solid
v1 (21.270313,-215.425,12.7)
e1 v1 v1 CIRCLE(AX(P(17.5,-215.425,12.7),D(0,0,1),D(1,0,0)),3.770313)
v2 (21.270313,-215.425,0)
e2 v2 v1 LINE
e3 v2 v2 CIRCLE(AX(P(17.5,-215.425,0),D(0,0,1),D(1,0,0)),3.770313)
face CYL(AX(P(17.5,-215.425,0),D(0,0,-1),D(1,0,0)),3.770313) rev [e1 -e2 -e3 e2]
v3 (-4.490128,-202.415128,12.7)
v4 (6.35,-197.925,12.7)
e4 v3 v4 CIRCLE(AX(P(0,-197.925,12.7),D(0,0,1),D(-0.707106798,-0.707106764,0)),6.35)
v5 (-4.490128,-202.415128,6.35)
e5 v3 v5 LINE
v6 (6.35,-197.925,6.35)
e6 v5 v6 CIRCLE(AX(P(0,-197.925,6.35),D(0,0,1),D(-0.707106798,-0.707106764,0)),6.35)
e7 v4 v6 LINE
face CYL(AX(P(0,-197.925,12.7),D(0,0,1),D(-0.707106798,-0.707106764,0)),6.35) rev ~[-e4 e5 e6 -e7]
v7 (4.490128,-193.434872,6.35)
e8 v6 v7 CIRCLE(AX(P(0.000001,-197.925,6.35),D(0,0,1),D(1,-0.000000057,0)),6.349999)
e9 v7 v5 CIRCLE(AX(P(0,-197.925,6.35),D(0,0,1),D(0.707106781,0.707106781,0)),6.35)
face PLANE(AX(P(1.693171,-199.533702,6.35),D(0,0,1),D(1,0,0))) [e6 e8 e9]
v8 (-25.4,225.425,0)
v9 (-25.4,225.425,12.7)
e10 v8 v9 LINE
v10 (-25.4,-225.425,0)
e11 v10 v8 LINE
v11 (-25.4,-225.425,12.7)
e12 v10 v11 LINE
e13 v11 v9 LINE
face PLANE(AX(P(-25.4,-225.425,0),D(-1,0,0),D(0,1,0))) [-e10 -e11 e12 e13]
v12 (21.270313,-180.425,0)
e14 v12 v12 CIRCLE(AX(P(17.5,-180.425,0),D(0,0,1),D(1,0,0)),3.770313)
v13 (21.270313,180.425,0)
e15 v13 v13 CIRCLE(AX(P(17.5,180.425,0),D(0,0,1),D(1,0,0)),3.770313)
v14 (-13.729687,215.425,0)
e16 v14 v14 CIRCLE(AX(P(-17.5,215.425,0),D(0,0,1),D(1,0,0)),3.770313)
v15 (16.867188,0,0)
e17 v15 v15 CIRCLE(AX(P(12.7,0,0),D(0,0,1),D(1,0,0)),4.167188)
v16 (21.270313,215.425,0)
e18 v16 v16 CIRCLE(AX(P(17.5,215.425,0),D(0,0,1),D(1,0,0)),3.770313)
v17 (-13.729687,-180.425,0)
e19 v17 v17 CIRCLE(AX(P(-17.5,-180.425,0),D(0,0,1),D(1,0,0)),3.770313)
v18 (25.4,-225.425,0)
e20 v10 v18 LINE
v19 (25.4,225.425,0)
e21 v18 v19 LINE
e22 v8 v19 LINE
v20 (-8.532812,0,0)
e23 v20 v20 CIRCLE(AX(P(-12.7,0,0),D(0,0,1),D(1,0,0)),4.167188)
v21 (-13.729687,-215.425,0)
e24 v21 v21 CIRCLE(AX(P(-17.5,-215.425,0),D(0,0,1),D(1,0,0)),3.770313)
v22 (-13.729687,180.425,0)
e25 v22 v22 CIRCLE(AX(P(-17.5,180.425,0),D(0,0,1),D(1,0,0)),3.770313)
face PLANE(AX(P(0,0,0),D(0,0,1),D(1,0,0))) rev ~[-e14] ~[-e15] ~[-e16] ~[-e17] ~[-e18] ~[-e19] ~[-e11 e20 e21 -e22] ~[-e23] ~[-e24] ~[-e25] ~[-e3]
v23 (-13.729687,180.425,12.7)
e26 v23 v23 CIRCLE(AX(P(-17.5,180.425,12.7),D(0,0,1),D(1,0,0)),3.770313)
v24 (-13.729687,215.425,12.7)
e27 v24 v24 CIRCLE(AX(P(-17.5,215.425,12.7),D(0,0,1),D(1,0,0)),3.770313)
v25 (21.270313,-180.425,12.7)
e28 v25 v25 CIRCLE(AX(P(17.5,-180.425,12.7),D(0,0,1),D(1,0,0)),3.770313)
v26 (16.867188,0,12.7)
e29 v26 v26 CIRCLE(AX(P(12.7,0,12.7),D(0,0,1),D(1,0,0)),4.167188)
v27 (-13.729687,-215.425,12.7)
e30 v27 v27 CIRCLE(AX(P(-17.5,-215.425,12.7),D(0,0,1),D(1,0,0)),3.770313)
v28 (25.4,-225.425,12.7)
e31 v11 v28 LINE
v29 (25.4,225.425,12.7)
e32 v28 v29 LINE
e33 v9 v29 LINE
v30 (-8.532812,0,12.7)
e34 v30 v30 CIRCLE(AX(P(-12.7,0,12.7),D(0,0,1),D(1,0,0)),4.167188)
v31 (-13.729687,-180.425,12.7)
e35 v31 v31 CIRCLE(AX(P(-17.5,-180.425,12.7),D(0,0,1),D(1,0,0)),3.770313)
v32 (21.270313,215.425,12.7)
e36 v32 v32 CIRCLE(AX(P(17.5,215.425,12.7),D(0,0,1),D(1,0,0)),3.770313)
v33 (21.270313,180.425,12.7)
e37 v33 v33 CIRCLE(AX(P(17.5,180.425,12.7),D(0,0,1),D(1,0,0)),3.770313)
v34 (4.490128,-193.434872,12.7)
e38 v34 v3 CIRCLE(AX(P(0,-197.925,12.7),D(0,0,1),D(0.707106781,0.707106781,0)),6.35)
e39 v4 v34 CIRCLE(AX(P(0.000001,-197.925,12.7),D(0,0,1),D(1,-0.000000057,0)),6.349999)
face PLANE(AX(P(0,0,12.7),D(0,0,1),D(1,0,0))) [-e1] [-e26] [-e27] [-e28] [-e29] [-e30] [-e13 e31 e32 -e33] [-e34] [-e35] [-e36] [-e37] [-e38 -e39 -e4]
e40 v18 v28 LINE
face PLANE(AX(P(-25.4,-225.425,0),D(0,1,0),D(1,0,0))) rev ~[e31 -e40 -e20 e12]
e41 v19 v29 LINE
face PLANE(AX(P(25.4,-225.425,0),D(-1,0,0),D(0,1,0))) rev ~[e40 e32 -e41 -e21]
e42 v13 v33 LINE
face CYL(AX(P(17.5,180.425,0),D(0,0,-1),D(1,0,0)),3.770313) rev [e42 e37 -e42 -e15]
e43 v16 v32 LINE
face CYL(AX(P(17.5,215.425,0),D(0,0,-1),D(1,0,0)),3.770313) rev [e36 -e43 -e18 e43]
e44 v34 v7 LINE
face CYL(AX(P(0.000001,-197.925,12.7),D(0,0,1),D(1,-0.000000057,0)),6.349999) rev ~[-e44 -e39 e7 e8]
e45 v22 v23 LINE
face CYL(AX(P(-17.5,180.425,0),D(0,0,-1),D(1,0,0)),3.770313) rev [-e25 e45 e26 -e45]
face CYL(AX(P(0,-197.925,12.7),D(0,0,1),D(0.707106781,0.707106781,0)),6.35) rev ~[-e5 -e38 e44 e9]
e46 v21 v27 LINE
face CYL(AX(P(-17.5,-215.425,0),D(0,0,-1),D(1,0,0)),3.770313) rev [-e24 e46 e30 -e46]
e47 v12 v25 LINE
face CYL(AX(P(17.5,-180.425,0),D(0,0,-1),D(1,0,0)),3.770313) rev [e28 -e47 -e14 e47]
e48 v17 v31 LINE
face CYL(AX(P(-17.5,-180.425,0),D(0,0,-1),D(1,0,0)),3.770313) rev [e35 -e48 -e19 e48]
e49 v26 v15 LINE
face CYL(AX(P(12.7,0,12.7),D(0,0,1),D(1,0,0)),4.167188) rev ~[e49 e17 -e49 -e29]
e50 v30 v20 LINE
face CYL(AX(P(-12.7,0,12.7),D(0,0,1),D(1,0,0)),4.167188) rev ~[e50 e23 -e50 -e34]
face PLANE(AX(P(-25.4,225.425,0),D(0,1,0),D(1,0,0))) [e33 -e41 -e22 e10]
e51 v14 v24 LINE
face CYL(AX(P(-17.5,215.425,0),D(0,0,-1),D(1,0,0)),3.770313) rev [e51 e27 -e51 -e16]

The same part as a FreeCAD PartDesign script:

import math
import FreeCAD as App
import Part
import Sketcher
from FreeCAD import Vector
Q = App.Units.Quantity

doc = App.newDocument("Part")
params = doc.addObject("Spreadsheet::Sheet", "Params")
for row, (alias, value) in enumerate([
    ("sketch1_width", "2 in"),
    ("sketch1_diameter", "0.296875 in"),
    ("sketch1_height", "17.75 in"),
    ("pad1_length", "0.5 in"),
    ("sketch2_diameter", "0.328125 in"),
    ("pocket1_length", "1 in"),
    ("sketch3_radius", "0.25 in"),
    ("pocket2_length", "0.25 in"),
], start=1):
    params.set(f"A{row}", alias)
    params.set(f"B{row}", "=" + value)
    params.setAlias(f"B{row}", alias)

body = doc.addObject("PartDesign::Body", "Body")

sketch1 = body.newObject("Sketcher::SketchObject", "Sketch")
sketch1.AttachmentSupport = (doc.getObject("XY_Plane"), [""])
sketch1.MapMode = "FlatFace"
sketch1.addGeometry(Part.LineSegment(Vector(-25.4, 225.425, 0), Vector(-25.4, -225.425, 0)), False)
sketch1.addGeometry(Part.LineSegment(Vector(-25.4, -225.425, 0), Vector(25.4, -225.425, 0)), False)
sketch1.addGeometry(Part.LineSegment(Vector(25.4, -225.425, 0), Vector(25.4, 225.425, 0)), False)
sketch1.addGeometry(Part.LineSegment(Vector(25.4, 225.425, 0), Vector(-25.4, 225.425, 0)), False)
sketch1.addGeometry(Part.Circle(Vector(-17.5, -215.425, 0), Vector(0, 0, 1), 3.770313), False)
sketch1.addGeometry(Part.Circle(Vector(-17.5, -180.425, 0), Vector(0, 0, 1), 3.770313), False)
sketch1.addGeometry(Part.Circle(Vector(17.5, -215.425, 0), Vector(0, 0, 1), 3.770313), False)
sketch1.addGeometry(Part.Circle(Vector(17.5, -180.425, 0), Vector(0, 0, 1), 3.770313), False)
sketch1.addGeometry(Part.Circle(Vector(-17.5, 180.425, 0), Vector(0, 0, 1), 3.770313), False)
sketch1.addGeometry(Part.Circle(Vector(-17.5, 215.425, 0), Vector(0, 0, 1), 3.770313), False)
sketch1.addGeometry(Part.Circle(Vector(17.5, 180.425, 0), Vector(0, 0, 1), 3.770313), False)
sketch1.addGeometry(Part.Circle(Vector(17.5, 215.425, 0), Vector(0, 0, 1), 3.770313), False)
sketch1.addConstraint(Sketcher.Constraint("Coincident", 0, 2, 1, 1))
sketch1.addConstraint(Sketcher.Constraint("Coincident", 1, 2, 2, 1))
sketch1.addConstraint(Sketcher.Constraint("Coincident", 2, 2, 3, 1))
sketch1.addConstraint(Sketcher.Constraint("Coincident", 3, 2, 0, 1))
sketch1.addConstraint(Sketcher.Constraint("Vertical", 0))
sketch1.addConstraint(Sketcher.Constraint("Horizontal", 1))
sketch1.addConstraint(Sketcher.Constraint("Vertical", 2))
sketch1.addConstraint(Sketcher.Constraint("Horizontal", 3))
sketch1.addConstraint(Sketcher.Constraint("Equal", 4, 5))
sketch1.addConstraint(Sketcher.Constraint("Equal", 5, 6))
sketch1.addConstraint(Sketcher.Constraint("Equal", 6, 7))
sketch1.addConstraint(Sketcher.Constraint("Equal", 7, 8))
sketch1.addConstraint(Sketcher.Constraint("Equal", 8, 9))
sketch1.addConstraint(Sketcher.Constraint("Equal", 9, 10))
sketch1.addConstraint(Sketcher.Constraint("Equal", 10, 11))
sketch1.addConstraint(Sketcher.Constraint("Symmetric", 7, 3, 8, 3, -1, 1))
sketch1.addConstraint(Sketcher.Constraint("Symmetric", 6, 3, 9, 3, -1, 1))
sketch1.addConstraint(Sketcher.Constraint("Symmetric", 5, 3, 10, 3, -1, 1))
sketch1.addConstraint(Sketcher.Constraint("Symmetric", 4, 3, 11, 3, -1, 1))
sketch1.addConstraint(Sketcher.Constraint("Symmetric", 0, 2, 2, 2, -1, 1))
sketch1.addConstraint(Sketcher.Constraint("Symmetric", 4, 3, 6, 3, -2))
sketch1.addConstraint(Sketcher.Constraint("Symmetric", 5, 3, 7, 3, -2))
sketch1.addConstraint(Sketcher.Constraint("Vertical", 4, 3, 5, 3))
sketch1.addConstraint(Sketcher.Constraint("DistanceX", 1, 1, 1, 2, Q("2 in")))
sketch1.addConstraint(Sketcher.Constraint("Diameter", 4, Q("0.296875 in")))
sketch1.addConstraint(Sketcher.Constraint("DistanceY", 0, 2, 0, 1, Q("17.75 in")))
sketch1.addConstraint(Sketcher.Constraint("DistanceX", 4, 3, -1, 1, Q("17.5 mm")))
sketch1.addConstraint(Sketcher.Constraint("DistanceY", 4, 3, -1, 1, Q("215.425 mm")))
sketch1.addConstraint(Sketcher.Constraint("DistanceY", 5, 3, -1, 1, Q("180.425 mm")))
sketch1.setExpression("Constraints[23]", "Params.sketch1_width")
sketch1.setExpression("Constraints[24]", "Params.sketch1_diameter")
sketch1.setExpression("Constraints[25]", "Params.sketch1_height")
pad1 = body.newObject("PartDesign::Pad", "Pad")
pad1.Profile = sketch1
pad1.setExpression("Length", "Params.pad1_length")

sketch2 = body.newObject("Sketcher::SketchObject", "Sketch001")
sketch2.AttachmentSupport = (doc.getObject("XY_Plane"), [""])
sketch2.MapMode = "FlatFace"
sketch2.AttachmentOffset = App.Placement(Vector(0, 0, 0.5 * 25.4), App.Rotation())
sketch2.addGeometry(Part.Circle(Vector(-12.7, 0, 0), Vector(0, 0, 1), 4.167188), False)
sketch2.addGeometry(Part.Circle(Vector(12.7, 0, 0), Vector(0, 0, 1), 4.167188), False)
sketch2.addConstraint(Sketcher.Constraint("Equal", 0, 1))
sketch2.addConstraint(Sketcher.Constraint("Symmetric", 0, 3, 1, 3, -1, 1))
sketch2.addConstraint(Sketcher.Constraint("PointOnObject", 0, 3, -1))
sketch2.addConstraint(Sketcher.Constraint("Diameter", 0, Q("0.328125 in")))
sketch2.addConstraint(Sketcher.Constraint("DistanceX", 0, 3, 1, 3, Q("1 in")))
sketch2.setExpression("Constraints[3]", "Params.sketch2_diameter")
pocket1 = body.newObject("PartDesign::Pocket", "Pocket")
pocket1.Profile = sketch2
pocket1.setExpression("Length", "Params.pocket1_length")

sketch3 = body.newObject("Sketcher::SketchObject", "Sketch002")
sketch3.AttachmentSupport = (doc.getObject("XY_Plane"), [""])
sketch3.MapMode = "FlatFace"
sketch3.AttachmentOffset = App.Placement(Vector(0, 0, 0.5 * 25.4), App.Rotation())
sketch3.addGeometry(Part.ArcOfCircle(Part.Circle(Vector(0, -197.925, 0), Vector(0, 0, 1), 6.35), math.radians(-135.000001), math.radians(0.000001)), False)
sketch3.addGeometry(Part.ArcOfCircle(Part.Circle(Vector(0.000001, -197.925, 0), Vector(0, 0, 1), 6.349999), math.radians(-0.000003), math.radians(45.000005)), False)
sketch3.addGeometry(Part.ArcOfCircle(Part.Circle(Vector(0, -197.925, 0), Vector(0, 0, 1), 6.35), math.radians(45), math.radians(225)), False)
sketch3.addConstraint(Sketcher.Constraint("Tangent", 0, 2, 1, 1))
sketch3.addConstraint(Sketcher.Constraint("Tangent", 1, 2, 2, 1))
sketch3.addConstraint(Sketcher.Constraint("Tangent", 2, 2, 0, 1))
sketch3.addConstraint(Sketcher.Constraint("PointOnObject", 0, 3, -2))
sketch3.addConstraint(Sketcher.Constraint("Horizontal", 2, 3, 0, 2))
sketch3.addConstraint(Sketcher.Constraint("Radius", 0, Q("0.25 in")))
sketch3.addConstraint(Sketcher.Constraint("DistanceY", 0, 3, -1, 1, Q("197.925 mm")))
sketch3.addConstraint(Sketcher.Constraint("DistanceY", 0, 3, 1, 2, Q("4.490128 mm")))
sketch3.addConstraint(Sketcher.Constraint("DistanceX", 2, 2, 0, 3, Q("4.490128 mm")))
sketch3.setExpression("Constraints[5]", "Params.sketch3_radius")
pocket2 = body.newObject("PartDesign::Pocket", "Pocket001")
pocket2.Profile = sketch3
pocket2.setExpression("Length", "Params.pocket2_length")

doc.recompute()
